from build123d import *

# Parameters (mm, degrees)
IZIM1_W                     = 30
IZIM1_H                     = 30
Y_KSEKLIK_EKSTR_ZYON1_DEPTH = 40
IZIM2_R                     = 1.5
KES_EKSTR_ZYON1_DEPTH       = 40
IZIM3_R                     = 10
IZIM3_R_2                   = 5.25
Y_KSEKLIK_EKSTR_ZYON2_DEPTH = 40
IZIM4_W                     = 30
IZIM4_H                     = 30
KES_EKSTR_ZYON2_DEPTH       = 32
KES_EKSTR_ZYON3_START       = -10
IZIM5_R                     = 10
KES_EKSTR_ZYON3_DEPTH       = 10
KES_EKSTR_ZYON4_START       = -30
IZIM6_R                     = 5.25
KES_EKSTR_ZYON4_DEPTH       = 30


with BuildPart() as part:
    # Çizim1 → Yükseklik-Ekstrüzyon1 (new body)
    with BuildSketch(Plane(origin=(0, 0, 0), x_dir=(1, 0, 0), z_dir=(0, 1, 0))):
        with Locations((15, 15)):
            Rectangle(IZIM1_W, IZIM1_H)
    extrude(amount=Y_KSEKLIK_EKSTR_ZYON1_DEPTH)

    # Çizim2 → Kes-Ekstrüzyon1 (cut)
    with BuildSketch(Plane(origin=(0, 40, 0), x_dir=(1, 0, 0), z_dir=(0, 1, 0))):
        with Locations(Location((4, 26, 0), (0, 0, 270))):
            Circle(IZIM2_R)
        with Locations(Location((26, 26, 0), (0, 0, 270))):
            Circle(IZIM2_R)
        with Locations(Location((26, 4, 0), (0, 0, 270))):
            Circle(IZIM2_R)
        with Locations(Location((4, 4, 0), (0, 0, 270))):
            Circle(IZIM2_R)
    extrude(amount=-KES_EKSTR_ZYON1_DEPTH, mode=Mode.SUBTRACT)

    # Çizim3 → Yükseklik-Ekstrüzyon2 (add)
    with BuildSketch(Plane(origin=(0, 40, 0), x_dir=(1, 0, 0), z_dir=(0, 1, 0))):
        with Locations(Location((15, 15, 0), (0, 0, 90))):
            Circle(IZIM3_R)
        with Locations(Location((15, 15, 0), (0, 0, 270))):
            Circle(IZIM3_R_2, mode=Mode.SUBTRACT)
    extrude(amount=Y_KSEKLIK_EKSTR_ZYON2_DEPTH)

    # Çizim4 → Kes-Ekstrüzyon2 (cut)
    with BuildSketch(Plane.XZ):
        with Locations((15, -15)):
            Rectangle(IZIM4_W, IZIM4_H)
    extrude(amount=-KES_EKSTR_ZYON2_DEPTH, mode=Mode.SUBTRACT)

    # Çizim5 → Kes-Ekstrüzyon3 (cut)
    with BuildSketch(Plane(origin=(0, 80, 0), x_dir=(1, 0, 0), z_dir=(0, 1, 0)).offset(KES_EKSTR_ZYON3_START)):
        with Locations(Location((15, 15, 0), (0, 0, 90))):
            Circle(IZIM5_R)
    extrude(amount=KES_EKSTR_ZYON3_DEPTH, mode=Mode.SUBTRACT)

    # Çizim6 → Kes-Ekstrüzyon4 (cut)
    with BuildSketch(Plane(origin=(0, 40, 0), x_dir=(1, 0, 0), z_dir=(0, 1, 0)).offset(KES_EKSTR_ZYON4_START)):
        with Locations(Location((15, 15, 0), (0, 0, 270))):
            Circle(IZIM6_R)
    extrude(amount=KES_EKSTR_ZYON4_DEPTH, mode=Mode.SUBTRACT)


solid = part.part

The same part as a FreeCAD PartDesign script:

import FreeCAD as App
import Part
import Sketcher
from FreeCAD import Vector
Q = App.Units.Quantity


def add_polygon(sketch, points):
    """Adds a closed chain of lines whose ends are joined by coincident constraints."""
    first, n = sketch.GeometryCount, len(points)
    for a, b in zip(points, points[1:] + points[:1]):
        sketch.addGeometry(Part.LineSegment(App.Vector(*a, 0), App.Vector(*b, 0)), False)
    for i in range(n):
        sketch.addConstraint(Sketcher.Constraint("Coincident", first + i, 2, first + (i + 1) % n, 1))

doc = App.newDocument("Part")
body = doc.addObject("PartDesign::Body", "Body")

sketch1 = doc.addObject("Sketcher::SketchObject", "Sketch")
body.addObject(sketch1)
sketch1.AttachmentSupport = (doc.XZ_Plane, [""])
sketch1.MapMode = "FlatFace"
add_polygon(sketch1, [(0, -30), (0, 0), (30, 0), (30, -30)])
sketch1.addConstraint(Sketcher.Constraint("Vertical", 0))
sketch1.addConstraint(Sketcher.Constraint("Horizontal", 1))
sketch1.addConstraint(Sketcher.Constraint("Vertical", 2))
sketch1.addConstraint(Sketcher.Constraint("Horizontal", 3))
sketch1.addConstraint(Sketcher.Constraint("Coincident", 0, 2, -1, 1))
sketch1.addConstraint(Sketcher.Constraint("Equal", 3, 0))
sketch1.addConstraint(Sketcher.Constraint("DistanceX", 1, 1, 1, 2, Q("30 mm")))
pad1 = doc.addObject("PartDesign::Pad", "Pad")
body.addObject(pad1)
pad1.Profile = sketch1
pad1.Length = 40
pad1.Reversed = True

sketch2 = doc.addObject("Sketcher::SketchObject", "Sketch001")
body.addObject(sketch2)
sketch2.AttachmentSupport = (doc.XZ_Plane, [""])
sketch2.MapMode = "FlatFace"
sketch2.AttachmentOffset = App.Placement(Vector(0, 0, -40), App.Rotation())
sketch2.addGeometry(Part.Circle(Vector(4, -26, 0), Vector(0, 0, 1), 1.5), False)
sketch2.addGeometry(Part.Circle(Vector(26, -26, 0), Vector(0, 0, 1), 1.5), False)
sketch2.addGeometry(Part.Circle(Vector(26, -4, 0), Vector(0, 0, 1), 1.5), False)
sketch2.addGeometry(Part.Circle(Vector(4, -4, 0), Vector(0, 0, 1), 1.5), False)
sketch2.addConstraint(Sketcher.Constraint("Equal", 0, 1))
sketch2.addConstraint(Sketcher.Constraint("Equal", 1, 2))
sketch2.addConstraint(Sketcher.Constraint("Equal", 2, 3))
sketch2.addConstraint(Sketcher.Constraint("Horizontal", 0, 3, 1, 3))
sketch2.addConstraint(Sketcher.Constraint("Horizontal", 2, 3, 3, 3))
sketch2.addConstraint(Sketcher.Constraint("Vertical", 1, 3, 2, 3))
sketch2.addConstraint(Sketcher.Constraint("Vertical", 0, 3, 3, 3))
sketch2.addConstraint(Sketcher.Constraint("Diameter", 0, Q("3 mm")))
sketch2.addConstraint(Sketcher.Constraint("DistanceX", -1, 1, 0, 3, Q("4 mm")))
sketch2.addConstraint(Sketcher.Constraint("DistanceY", 0, 3, -1, 1, Q("26 mm")))
sketch2.addConstraint(Sketcher.Constraint("DistanceX", -1, 1, 1, 3, Q("26 mm")))
sketch2.addConstraint(Sketcher.Constraint("DistanceY", 2, 3, -1, 1, Q("4 mm")))
pocket1 = doc.addObject("PartDesign::Pocket", "Pocket")
body.addObject(pocket1)
pocket1.Profile = sketch2
pocket1.Length = 40
pocket1.Reversed = True

sketch3 = doc.addObject("Sketcher::SketchObject", "Sketch002")
body.addObject(sketch3)
sketch3.AttachmentSupport = (doc.XZ_Plane, [""])
sketch3.MapMode = "FlatFace"
sketch3.AttachmentOffset = App.Placement(Vector(0, 0, -40), App.Rotation())
sketch3.addGeometry(Part.Circle(Vector(15, -15, 0), Vector(0, 0, 1), 10), False)
sketch3.addGeometry(Part.Circle(Vector(15, -15, 0), Vector(0, 0, 1), 5), False)
sketch3.addConstraint(Sketcher.Constraint("Coincident", 1, 3, 0, 3))
sketch3.addConstraint(Sketcher.Constraint("Diameter", 0, Q("20 mm")))
sketch3.addConstraint(Sketcher.Constraint("Diameter", 1, Q("10.5 mm")))
sketch3.addConstraint(Sketcher.Constraint("DistanceX", -1, 1, 0, 3, Q("15 mm")))
sketch3.addConstraint(Sketcher.Constraint("DistanceY", 0, 3, -1, 1, Q("15 mm")))
pad2 = doc.addObject("PartDesign::Pad", "Pad001")
body.addObject(pad2)
pad2.Profile = sketch3
pad2.Length = 40
pad2.Reversed = True

sketch4 = doc.addObject("Sketcher::SketchObject", "Sketch003")
body.addObject(sketch4)
sketch4.AttachmentSupport = (doc.XZ_Plane, [""])
sketch4.MapMode = "FlatFace"
add_polygon(sketch4, [(0, 0), (0, -30), (30, -30), (30, 0)])
sketch4.addConstraint(Sketcher.Constraint("Vertical", 0))
sketch4.addConstraint(Sketcher.Constraint("Horizontal", 1))
sketch4.addConstraint(Sketcher.Constraint("Vertical", 2))
sketch4.addConstraint(Sketcher.Constraint("Horizontal", 3))
sketch4.addConstraint(Sketcher.Constraint("Coincident", 3, 2, -1, 1))
sketch4.addConstraint(Sketcher.Constraint("Equal", 3, 0))
sketch4.addConstraint(Sketcher.Constraint("DistanceX", 1, 1, 1, 2, Q("30 mm")))
pocket2 = doc.addObject("PartDesign::Pocket", "Pocket001")
body.addObject(pocket2)
pocket2.Profile = sketch4
pocket2.Length = 32

sketch5 = doc.addObject("Sketcher::SketchObject", "Sketch004")
body.addObject(sketch5)
sketch5.AttachmentSupport = (doc.XZ_Plane, [""])
sketch5.MapMode = "FlatFace"
sketch5.AttachmentOffset = App.Placement(Vector(0, 0, -70), App.Rotation())
sketch5.addGeometry(Part.Circle(Vector(15, -15, 0), Vector(0, 0, 1), 10), False)
sketch5.addConstraint(Sketcher.Constraint("Diameter", 0, Q("20 mm")))
sketch5.addConstraint(Sketcher.Constraint("DistanceX", -1, 1, 0, 3, Q("15 mm")))
sketch5.addConstraint(Sketcher.Constraint("DistanceY", 0, 3, -1, 1, Q("15 mm")))
pocket3 = doc.addObject("PartDesign::Pocket", "Pocket002")
body.addObject(pocket3)
pocket3.Profile = sketch5
pocket3.Length = 10

sketch6 = doc.addObject("Sketcher::SketchObject", "Sketch005")
body.addObject(sketch6)
sketch6.AttachmentSupport = (doc.XZ_Plane, [""])
sketch6.MapMode = "FlatFace"
sketch6.AttachmentOffset = App.Placement(Vector(0, 0, -10), App.Rotation())
sketch6.addGeometry(Part.Circle(Vector(15, -15, 0), Vector(0, 0, 1), 5), False)
sketch6.addConstraint(Sketcher.Constraint("Diameter", 0, Q("10.5 mm")))
sketch6.addConstraint(Sketcher.Constraint("DistanceX", -1, 1, 0, 3, Q("15 mm")))
sketch6.addConstraint(Sketcher.Constraint("DistanceY", 0, 3, -1, 1, Q("15 mm")))
pocket4 = doc.addObject("PartDesign::Pocket", "Pocket003")
body.addObject(pocket4)
pocket4.Profile = sketch6
pocket4.Length = 30

doc.recompute()
